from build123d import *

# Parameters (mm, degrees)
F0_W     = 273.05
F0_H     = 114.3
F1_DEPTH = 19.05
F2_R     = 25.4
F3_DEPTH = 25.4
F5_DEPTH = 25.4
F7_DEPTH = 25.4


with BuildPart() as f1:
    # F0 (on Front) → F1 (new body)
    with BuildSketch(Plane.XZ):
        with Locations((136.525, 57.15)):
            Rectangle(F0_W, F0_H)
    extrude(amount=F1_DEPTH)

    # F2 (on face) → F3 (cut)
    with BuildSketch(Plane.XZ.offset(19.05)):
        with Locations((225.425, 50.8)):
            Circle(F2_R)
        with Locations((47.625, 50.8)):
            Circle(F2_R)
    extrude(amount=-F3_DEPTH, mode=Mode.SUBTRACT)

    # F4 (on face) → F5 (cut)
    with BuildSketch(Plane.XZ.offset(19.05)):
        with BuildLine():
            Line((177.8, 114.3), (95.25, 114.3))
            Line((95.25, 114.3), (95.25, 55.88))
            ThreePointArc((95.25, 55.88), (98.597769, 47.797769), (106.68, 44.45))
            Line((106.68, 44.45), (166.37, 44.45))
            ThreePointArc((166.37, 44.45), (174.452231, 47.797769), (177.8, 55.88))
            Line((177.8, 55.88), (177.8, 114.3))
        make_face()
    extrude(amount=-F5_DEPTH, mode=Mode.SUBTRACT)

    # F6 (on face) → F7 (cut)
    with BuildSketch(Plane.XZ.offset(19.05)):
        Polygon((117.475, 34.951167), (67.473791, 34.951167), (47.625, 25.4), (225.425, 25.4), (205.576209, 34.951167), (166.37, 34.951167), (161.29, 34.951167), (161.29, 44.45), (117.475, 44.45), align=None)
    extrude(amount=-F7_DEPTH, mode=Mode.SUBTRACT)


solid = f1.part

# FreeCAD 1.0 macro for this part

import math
import FreeCAD as App
import Part
import Sketcher

V = App.Vector
Q = App.Units.Quantity

doc = App.newDocument("Part")
body = doc.addObject("PartDesign::Body", "Body")

# Sketch on XZ plane
sketch1 = body.newObject("Sketcher::SketchObject", "Sketch")
sketch1.AttachmentSupport = (doc.getObject("XZ_Plane"), [""])
sketch1.MapMode = "FlatFace"
sketch1.addGeometry([
    Part.LineSegment(V(0, 114, 0), V(0, 0, 0)),
    Part.LineSegment(V(0, 0, 0), V(273, 0, 0)),
    Part.LineSegment(V(273, 0, 0), V(273, 114, 0)),
    Part.LineSegment(V(273, 114, 0), V(0, 114, 0)),
], False)
sketch1.addConstraint([
    Sketcher.Constraint("Coincident", 0, 2, 1, 1),
    Sketcher.Constraint("Coincident", 1, 2, 2, 1),
    Sketcher.Constraint("Coincident", 2, 2, 3, 1),
    Sketcher.Constraint("Coincident", 3, 2, 0, 1),
    Sketcher.Constraint("Vertical", 0),
    Sketcher.Constraint("Horizontal", 1),
    Sketcher.Constraint("Vertical", 2),
    Sketcher.Constraint("Horizontal", 3),
    Sketcher.Constraint("Coincident", 0, 2, -1, 1),
    Sketcher.Constraint("DistanceY", 0, 2, 0, 1, Q("4.5 in")),
    Sketcher.Constraint("DistanceX", 1, 1, 1, 2, Q("10.75 in")),
])
pad1 = body.newObject("PartDesign::Pad", "Pad")
pad1.Profile = sketch1
pad1.Length = Q("0.75 in")

# Sketch on XZ plane
sketch2 = body.newObject("Sketcher::SketchObject", "Sketch001")
sketch2.AttachmentSupport = (doc.getObject("XZ_Plane"), [""])
sketch2.MapMode = "FlatFace"
sketch2.AttachmentOffset = App.Placement(V(0, 0, 0.75 * 25.4), App.Rotation())
sketch2.addGeometry([
    Part.Circle(V(225, 51, 0), V(0, 0, 1), 25),
    Part.Circle(V(48, 51, 0), V(0, 0, 1), 25),
], False)
sketch2.addConstraint([
    Sketcher.Constraint("Equal", 0, 1),
    Sketcher.Constraint("Horizontal", 0, 3, 1, 3),
    Sketcher.Constraint("Diameter", 0, Q("2 in")),
    Sketcher.Constraint("DistanceY", -1, 1, 0, 3, Q("2 in")),
    Sketcher.Constraint("DistanceX", 1, 3, 0, 3, Q("7 in")),
    Sketcher.Constraint("DistanceX", -1, 1, 0, 3, Q("8.875 in")),
])
pocket1 = body.newObject("PartDesign::Pocket", "Pocket")
pocket1.Profile = sketch2
pocket1.Length = Q("1 in")

# Sketch on XZ plane
sketch3 = body.newObject("Sketcher::SketchObject", "Sketch002")
sketch3.AttachmentSupport = (doc.getObject("XZ_Plane"), [""])
sketch3.MapMode = "FlatFace"
sketch3.AttachmentOffset = App.Placement(V(0, 0, 0.75 * 25.4), App.Rotation())
sketch3.addGeometry([
    Part.LineSegment(V(178, 114, 0), V(95, 114, 0)),  # 0
    Part.LineSegment(V(95, 114, 0), V(95, 56, 0)),  # 1
    Part.ArcOfCircle(Part.Circle(V(107, 56, 0), V(0, 0, 1), 11), math.radians(180), math.radians(270)),  # 2
    Part.LineSegment(V(107, 44, 0), V(166, 44, 0)),  # 3
    Part.ArcOfCircle(Part.Circle(V(166, 56, 0), V(0, 0, 1), 11), math.radians(-90), math.radians(0)),  # 4
    Part.LineSegment(V(178, 56, 0), V(178, 114, 0)),  # 5
], False)
sketch3.addConstraint([
    Sketcher.Constraint("Coincident", 0, 2, 1, 1),
    Sketcher.Constraint("Tangent", 1, 2, 2, 1),
    Sketcher.Constraint("Tangent", 2, 2, 3, 1),
    Sketcher.Constraint("Tangent", 3, 2, 4, 1),
    Sketcher.Constraint("Tangent", 4, 2, 5, 1),
    Sketcher.Constraint("Coincident", 5, 2, 0, 1),
    Sketcher.Constraint("Horizontal", 0),
    Sketcher.Constraint("Vertical", 1),
    Sketcher.Constraint("Horizontal", 3),
    Sketcher.Constraint("Vertical", 5),
    Sketcher.Constraint("Equal", 2, 4),
    Sketcher.Constraint("Radius", 2, Q("0.4499999 in")),
    Sketcher.Constraint("DistanceY", 1, 2, 1, 1, Q("2.3 in")),
    Sketcher.Constraint("DistanceX", -1, 1, 4, 2, Q("7 in")),
    Sketcher.Constraint("DistanceX", 0, 2, 0, 1, Q("3.25 in")),
    Sketcher.Constraint("DistanceY", -1, 1, 2, 3, Q("2.1999999 in")),
])
pocket2 = body.newObject("PartDesign::Pocket", "Pocket001")
pocket2.Profile = sketch3
pocket2.Length = Q("1 in")

# Sketch on XZ plane
sketch4 = body.newObject("Sketcher::SketchObject", "Sketch003")
sketch4.AttachmentSupport = (doc.getObject("XZ_Plane"), [""])
sketch4.MapMode = "FlatFace"
sketch4.AttachmentOffset = App.Placement(V(0, 0, 0.75 * 25.4), App.Rotation())
sketch4.addGeometry([
    Part.LineSegment(V(117, 35, 0), V(67, 35, 0)),  # 0
    Part.LineSegment(V(67, 35, 0), V(48, 25, 0)),  # 1
    Part.LineSegment(V(48, 25, 0), V(225, 25, 0)),  # 2
    Part.LineSegment(V(225, 25, 0), V(206, 35, 0)),  # 3
    Part.LineSegment(V(206, 35, 0), V(161, 35, 0)),  # 4
    Part.LineSegment(V(161, 35, 0), V(161, 44, 0)),  # 5
    Part.LineSegment(V(161, 44, 0), V(117, 44, 0)),  # 6
    Part.LineSegment(V(117, 44, 0), V(117, 35, 0)),  # 7
], False)
sketch4.addConstraint([
    Sketcher.Constraint("Coincident", 0, 2, 1, 1),
    Sketcher.Constraint("Coincident", 1, 2, 2, 1),
    Sketcher.Constraint("Coincident", 2, 2, 3, 1),
    Sketcher.Constraint("Coincident", 3, 2, 4, 1),
    Sketcher.Constraint("Coincident", 4, 2, 5, 1),
    Sketcher.Constraint("Coincident", 5, 2, 6, 1),
    Sketcher.Constraint("Coincident", 6, 2, 7, 1),
    Sketcher.Constraint("Coincident", 7, 2, 0, 1),
    Sketcher.Constraint("Horizontal", 0),
    Sketcher.Constraint("Horizontal", 2),
    Sketcher.Constraint("Horizontal", 4),
    Sketcher.Constraint("Vertical", 5),
    Sketcher.Constraint("Horizontal", 6),
    Sketcher.Constraint("Vertical", 7),
    Sketcher.Constraint("Horizontal", 0, 2, 3, 2),
    Sketcher.Constraint("Equal", 1, 3),
    Sketcher.Constraint("DistanceX", 2, 1, 2, 2, Q("7 in")),
    Sketcher.Constraint("DistanceY", -1, 1, 1, 2, Q("1 in")),
    Sketcher.Constraint("DistanceX", 6, 2, 6, 1, Q("1.725 in")),
    Sketcher.Constraint("DistanceX", -1, 1, 4, 2, Q("6.35 in")),
    Sketcher.Constraint("DistanceY", -1, 1, 5, 2, Q("1.75 in")),
    Sketcher.Constraint("DistanceX", 1, 2, 6, 2, Q("2.75 in")),
    Sketcher.Constraint("DistanceX", 0, 2, 0, 1, Q("50.001209 mm")),
    Sketcher.Constraint("Distance", 1, Q("22.02724 mm")),
])
pocket3 = body.newObject("PartDesign::Pocket", "Pocket002")
pocket3.Profile = sketch4
pocket3.Length = Q("1 in")

doc.recompute()
